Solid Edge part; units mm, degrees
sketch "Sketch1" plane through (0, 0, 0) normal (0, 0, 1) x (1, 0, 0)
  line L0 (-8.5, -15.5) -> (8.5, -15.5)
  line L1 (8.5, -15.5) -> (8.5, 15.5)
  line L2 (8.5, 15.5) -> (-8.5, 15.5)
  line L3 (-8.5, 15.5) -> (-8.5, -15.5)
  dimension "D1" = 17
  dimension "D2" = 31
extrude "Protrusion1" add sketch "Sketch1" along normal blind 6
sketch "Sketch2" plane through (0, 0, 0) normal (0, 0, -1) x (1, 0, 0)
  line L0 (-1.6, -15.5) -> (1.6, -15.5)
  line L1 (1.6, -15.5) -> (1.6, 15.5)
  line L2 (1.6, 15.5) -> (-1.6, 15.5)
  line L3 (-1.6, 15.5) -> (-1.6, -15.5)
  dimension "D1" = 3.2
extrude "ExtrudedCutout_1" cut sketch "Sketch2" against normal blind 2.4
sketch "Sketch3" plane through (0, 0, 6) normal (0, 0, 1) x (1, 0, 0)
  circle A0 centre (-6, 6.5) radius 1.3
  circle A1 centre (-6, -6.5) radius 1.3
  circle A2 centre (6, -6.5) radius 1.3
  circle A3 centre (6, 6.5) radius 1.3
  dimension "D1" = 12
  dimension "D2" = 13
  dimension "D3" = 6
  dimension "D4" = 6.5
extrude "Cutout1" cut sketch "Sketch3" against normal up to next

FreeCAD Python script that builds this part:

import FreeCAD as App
import Part
import Sketcher

doc = App.newDocument("Part")
params = doc.addObject("Spreadsheet::Sheet", "Params")
for row, (alias, value) in enumerate([
    ("sketch1_height", "31 mm"),
    ("pad1_length", "6 mm"),
    ("sketch2_height", "31 mm"),
    ("pocket1_length", "2.4 mm"),
    ("sketch3_diameter", "2.6 mm"),
    ("pocket2_length", "6 mm"),
], start=1):
    params.set(f"A{row}", alias)
    params.set(f"B{row}", "=" + value)
    params.setAlias(f"B{row}", alias)

body = doc.addObject("PartDesign::Body", "Body")

sketch1 = body.newObject("Sketcher::SketchObject", "Sketch")
sketch1.AttachmentSupport = (doc.getObject("XY_Plane"), [""])
sketch1.MapMode = "FlatFace"
sketch1.addGeometry([
    Part.LineSegment(App.Vector(-8, 16, 0), App.Vector(-8, -16, 0)),
    Part.LineSegment(App.Vector(-8, -16, 0), App.Vector(8, -16, 0)),
    Part.LineSegment(App.Vector(8, -16, 0), App.Vector(8, 16, 0)),
    Part.LineSegment(App.Vector(8, 16, 0), App.Vector(-8, 16, 0)),
], False)
sketch1.addConstraint([
    Sketcher.Constraint("Coincident", 0, 2, 1, 1),
    Sketcher.Constraint("Coincident", 1, 2, 2, 1),
    Sketcher.Constraint("Coincident", 2, 2, 3, 1),
    Sketcher.Constraint("Coincident", 3, 2, 0, 1),
    Sketcher.Constraint("Vertical", 0),
    Sketcher.Constraint("Horizontal", 1),
    Sketcher.Constraint("Vertical", 2),
    Sketcher.Constraint("Horizontal", 3),
    Sketcher.Constraint("Symmetric", 0, 2, 2, 2, -1, 1),
    Sketcher.Constraint("DistanceX", 0, 2, -1, 1, 8.5),
    Sketcher.Constraint("DistanceY", 0, 2, 0, 1, 31.0),
])
sketch1.setExpression("Constraints[10]", "Params.sketch1_height")
pad1 = body.newObject("PartDesign::Pad", "Pad")
pad1.Profile = sketch1
pad1.setExpression("Length", "Params.pad1_length")

sketch2 = body.newObject("Sketcher::SketchObject", "Sketch001")
sketch2.AttachmentSupport = (doc.getObject("XY_Plane"), [""])
sketch2.MapMode = "FlatFace"
sketch2.addGeometry([
    Part.LineSegment(App.Vector(-1.6, -15.5, 0), App.Vector(-1.6, 15.5, 0)),
    Part.LineSegment(App.Vector(-1.6, 15.5, 0), App.Vector(1.6, 15.5, 0)),
    Part.LineSegment(App.Vector(1.6, 15.5, 0), App.Vector(1.6, -15.5, 0)),
    Part.LineSegment(App.Vector(1.6, -15.5, 0), App.Vector(-1.6, -15.5, 0)),
], False)
sketch2.addConstraint([
    Sketcher.Constraint("Coincident", 0, 2, 1, 1),
    Sketcher.Constraint("Coincident", 1, 2, 2, 1),
    Sketcher.Constraint("Coincident", 2, 2, 3, 1),
    Sketcher.Constraint("Coincident", 3, 2, 0, 1),
    Sketcher.Constraint("Vertical", 0),
    Sketcher.Constraint("Horizontal", 1),
    Sketcher.Constraint("Vertical", 2),
    Sketcher.Constraint("Horizontal", 3),
    Sketcher.Constraint("Symmetric", 0, 2, 2, 2, -1, 1),
    Sketcher.Constraint("DistanceX", 0, 2, -1, 1, 1.6),
    Sketcher.Constraint("DistanceY", 0, 1, 0, 2, 31.0),
])
sketch2.setExpression("Constraints[10]", "Params.sketch2_height")
pocket1 = body.newObject("PartDesign::Pocket", "Pocket")
pocket1.Profile = sketch2
pocket1.setExpression("Length", "Params.pocket1_length")
pocket1.Reversed = True

sketch3 = body.newObject("Sketcher::SketchObject", "Sketch002")
sketch3.AttachmentSupport = (doc.getObject("XY_Plane"), [""])
sketch3.MapMode = "FlatFace"
sketch3.AttachmentOffset = App.Placement(App.Vector(0, 0, 6), App.Rotation())
sketch3.addGeometry([
    Part.Circle(App.Vector(-6, 6.5, 0), App.Vector(0, 0, 1), 1.3),
    Part.Circle(App.Vector(-6, -6.5, 0), App.Vector(0, 0, 1), 1.3),
    Part.Circle(App.Vector(6, -6.5, 0), App.Vector(0, 0, 1), 1.3),
    Part.Circle(App.Vector(6, 6.5, 0), App.Vector(0, 0, 1), 1.3),
], False)
sketch3.addConstraint([
    Sketcher.Constraint("Equal", 0, 1),
    Sketcher.Constraint("Equal", 1, 2),
    Sketcher.Constraint("Equal", 2, 3),
    Sketcher.Constraint("Symmetric", 0, 3, 2, 3, -1, 1),
    Sketcher.Constraint("Symmetric", 1, 3, 3, 3, -1, 1),
    Sketcher.Constraint("Symmetric", 1, 3, 2, 3, -2),
    Sketcher.Constraint("Diameter", 0, 2.6),
    Sketcher.Constraint("DistanceX", 0, 3, -1, 1, 6.0),
    Sketcher.Constraint("DistanceY", 1, 3, 0, 3, 13.0),
])
sketch3.setExpression("Constraints[6]", "Params.sketch3_diameter")
pocket2 = body.newObject("PartDesign::Pocket", "Pocket001")
pocket2.Profile = sketch3
pocket2.setExpression("Length", "Params.pocket2_length")

doc.recompute()
